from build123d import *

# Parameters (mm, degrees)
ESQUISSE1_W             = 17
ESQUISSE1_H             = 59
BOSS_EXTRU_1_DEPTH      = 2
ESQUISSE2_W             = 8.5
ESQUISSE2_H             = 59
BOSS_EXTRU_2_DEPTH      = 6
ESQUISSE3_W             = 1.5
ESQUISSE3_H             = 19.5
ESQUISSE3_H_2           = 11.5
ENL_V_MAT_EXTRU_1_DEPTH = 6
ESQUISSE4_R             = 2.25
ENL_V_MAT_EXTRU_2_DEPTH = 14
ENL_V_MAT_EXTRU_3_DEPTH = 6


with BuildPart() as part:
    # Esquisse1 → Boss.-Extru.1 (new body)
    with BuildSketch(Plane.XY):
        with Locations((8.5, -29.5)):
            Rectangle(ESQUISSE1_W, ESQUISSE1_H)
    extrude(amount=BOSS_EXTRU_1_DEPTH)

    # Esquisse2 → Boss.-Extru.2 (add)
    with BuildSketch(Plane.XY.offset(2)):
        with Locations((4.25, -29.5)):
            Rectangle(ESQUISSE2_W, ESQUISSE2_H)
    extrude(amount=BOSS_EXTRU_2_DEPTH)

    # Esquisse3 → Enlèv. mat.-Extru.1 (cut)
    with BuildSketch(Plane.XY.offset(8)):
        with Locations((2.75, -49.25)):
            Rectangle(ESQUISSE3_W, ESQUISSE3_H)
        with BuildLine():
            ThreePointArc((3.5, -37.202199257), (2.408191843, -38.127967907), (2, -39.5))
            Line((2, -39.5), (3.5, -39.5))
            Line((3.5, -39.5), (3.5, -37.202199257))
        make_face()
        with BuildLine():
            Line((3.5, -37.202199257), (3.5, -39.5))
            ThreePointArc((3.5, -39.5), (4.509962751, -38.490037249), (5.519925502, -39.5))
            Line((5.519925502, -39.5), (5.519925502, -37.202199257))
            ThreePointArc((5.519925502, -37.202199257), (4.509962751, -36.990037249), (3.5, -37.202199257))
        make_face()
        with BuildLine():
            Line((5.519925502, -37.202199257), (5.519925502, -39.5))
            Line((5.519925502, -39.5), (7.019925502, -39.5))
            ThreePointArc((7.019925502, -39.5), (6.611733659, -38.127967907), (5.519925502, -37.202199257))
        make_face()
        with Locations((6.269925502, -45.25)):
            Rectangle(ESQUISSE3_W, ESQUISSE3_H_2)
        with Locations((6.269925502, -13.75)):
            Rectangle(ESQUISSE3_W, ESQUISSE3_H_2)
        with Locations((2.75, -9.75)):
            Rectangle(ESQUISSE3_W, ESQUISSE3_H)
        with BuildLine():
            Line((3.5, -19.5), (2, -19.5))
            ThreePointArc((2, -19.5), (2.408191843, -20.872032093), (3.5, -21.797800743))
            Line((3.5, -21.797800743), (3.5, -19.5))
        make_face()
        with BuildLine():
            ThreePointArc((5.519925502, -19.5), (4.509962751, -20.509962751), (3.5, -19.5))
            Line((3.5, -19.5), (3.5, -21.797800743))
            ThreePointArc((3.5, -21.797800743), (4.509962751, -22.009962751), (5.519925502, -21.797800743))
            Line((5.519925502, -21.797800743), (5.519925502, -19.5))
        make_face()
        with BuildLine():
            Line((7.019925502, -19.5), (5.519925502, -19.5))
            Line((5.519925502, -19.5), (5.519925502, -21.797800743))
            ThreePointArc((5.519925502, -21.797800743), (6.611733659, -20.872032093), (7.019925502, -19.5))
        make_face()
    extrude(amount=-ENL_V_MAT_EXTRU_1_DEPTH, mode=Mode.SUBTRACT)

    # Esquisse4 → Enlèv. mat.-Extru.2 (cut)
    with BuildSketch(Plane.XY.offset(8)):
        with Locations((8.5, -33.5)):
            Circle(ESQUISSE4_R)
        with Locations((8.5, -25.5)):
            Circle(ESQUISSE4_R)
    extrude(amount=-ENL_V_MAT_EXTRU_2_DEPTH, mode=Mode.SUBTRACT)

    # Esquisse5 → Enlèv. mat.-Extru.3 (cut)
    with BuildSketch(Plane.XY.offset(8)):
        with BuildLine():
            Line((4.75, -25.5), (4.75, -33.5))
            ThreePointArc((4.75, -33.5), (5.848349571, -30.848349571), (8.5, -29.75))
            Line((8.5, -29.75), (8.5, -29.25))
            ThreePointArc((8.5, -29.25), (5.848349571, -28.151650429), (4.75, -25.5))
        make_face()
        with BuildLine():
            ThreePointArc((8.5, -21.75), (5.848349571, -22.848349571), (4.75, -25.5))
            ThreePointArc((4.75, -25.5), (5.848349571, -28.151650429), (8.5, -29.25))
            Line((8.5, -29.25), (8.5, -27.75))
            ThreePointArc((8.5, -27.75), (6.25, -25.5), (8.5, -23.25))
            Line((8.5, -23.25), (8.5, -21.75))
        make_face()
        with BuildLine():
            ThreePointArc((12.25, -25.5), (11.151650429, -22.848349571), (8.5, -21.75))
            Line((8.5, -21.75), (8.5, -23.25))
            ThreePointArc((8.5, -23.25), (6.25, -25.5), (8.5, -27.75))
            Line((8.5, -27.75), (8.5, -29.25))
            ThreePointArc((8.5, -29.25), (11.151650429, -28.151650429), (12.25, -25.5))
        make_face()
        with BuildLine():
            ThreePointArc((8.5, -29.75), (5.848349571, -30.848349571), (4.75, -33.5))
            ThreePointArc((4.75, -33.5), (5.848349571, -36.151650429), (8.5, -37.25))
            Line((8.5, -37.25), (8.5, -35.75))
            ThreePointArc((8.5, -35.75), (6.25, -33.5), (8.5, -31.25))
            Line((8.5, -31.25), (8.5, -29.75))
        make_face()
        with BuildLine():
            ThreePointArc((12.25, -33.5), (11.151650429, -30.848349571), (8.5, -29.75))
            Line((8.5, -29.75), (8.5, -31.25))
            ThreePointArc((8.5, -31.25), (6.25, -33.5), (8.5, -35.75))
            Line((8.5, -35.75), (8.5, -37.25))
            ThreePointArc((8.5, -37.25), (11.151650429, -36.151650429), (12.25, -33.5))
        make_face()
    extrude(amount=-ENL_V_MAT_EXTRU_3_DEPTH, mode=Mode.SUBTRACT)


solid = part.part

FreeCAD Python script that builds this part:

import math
import FreeCAD as App
import Part
import Sketcher

V = App.Vector
Q = App.Units.Quantity

doc = App.newDocument("Part")
body = doc.addObject("PartDesign::Body", "Body")

# Sketch on XY plane
sketch1 = body.newObject("Sketcher::SketchObject", "Sketch")
sketch1.AttachmentSupport = (doc.getObject("XY_Plane"), [""])
sketch1.MapMode = "FlatFace"
sketch1.addGeometry(Part.LineSegment(V(0, 0, 0), V(0, -59, 0)), False)
sketch1.addGeometry(Part.LineSegment(V(0, -59, 0), V(17, -59, 0)), False)
sketch1.addGeometry(Part.LineSegment(V(17, -59, 0), V(17, 0, 0)), False)
sketch1.addGeometry(Part.LineSegment(V(17, 0, 0), V(0, 0, 0)), False)
sketch1.addConstraint(Sketcher.Constraint("Coincident", 0, 2, 1, 1))
sketch1.addConstraint(Sketcher.Constraint("Coincident", 1, 2, 2, 1))
sketch1.addConstraint(Sketcher.Constraint("Coincident", 2, 2, 3, 1))
sketch1.addConstraint(Sketcher.Constraint("Coincident", 3, 2, 0, 1))
sketch1.addConstraint(Sketcher.Constraint("Vertical", 0))
sketch1.addConstraint(Sketcher.Constraint("Horizontal", 1))
sketch1.addConstraint(Sketcher.Constraint("Vertical", 2))
sketch1.addConstraint(Sketcher.Constraint("Horizontal", 3))
sketch1.addConstraint(Sketcher.Constraint("Coincident", 3, 2, -1, 1))
sketch1.addConstraint(Sketcher.Constraint("DistanceX", 1, 1, 1, 2, Q("17 mm")))
sketch1.addConstraint(Sketcher.Constraint("DistanceY", 0, 2, 0, 1, Q("59 mm")))
pad1 = body.newObject("PartDesign::Pad", "Pad")
pad1.Profile = sketch1
pad1.Length = 2

# Sketch on XY plane
sketch2 = body.newObject("Sketcher::SketchObject", "Sketch001")
sketch2.AttachmentSupport = (doc.getObject("XY_Plane"), [""])
sketch2.MapMode = "FlatFace"
sketch2.AttachmentOffset = App.Placement(V(0, 0, 2), App.Rotation())
sketch2.addGeometry(Part.LineSegment(V(0, 0, 0), V(0, -59, 0)), False)
sketch2.addGeometry(Part.LineSegment(V(0, -59, 0), V(8, -59, 0)), False)
sketch2.addGeometry(Part.LineSegment(V(8, -59, 0), V(8, 0, 0)), False)
sketch2.addGeometry(Part.LineSegment(V(8, 0, 0), V(0, 0, 0)), False)
sketch2.addConstraint(Sketcher.Constraint("Coincident", 0, 2, 1, 1))
sketch2.addConstraint(Sketcher.Constraint("Coincident", 1, 2, 2, 1))
sketch2.addConstraint(Sketcher.Constraint("Coincident", 2, 2, 3, 1))
sketch2.addConstraint(Sketcher.Constraint("Coincident", 3, 2, 0, 1))
sketch2.addConstraint(Sketcher.Constraint("Vertical", 0))
sketch2.addConstraint(Sketcher.Constraint("Horizontal", 1))
sketch2.addConstraint(Sketcher.Constraint("Vertical", 2))
sketch2.addConstraint(Sketcher.Constraint("Horizontal", 3))
sketch2.addConstraint(Sketcher.Constraint("Coincident", 3, 2, -1, 1))
sketch2.addConstraint(Sketcher.Constraint("DistanceY", 0, 2, 0, 1, Q("59 mm")))
sketch2.addConstraint(Sketcher.Constraint("DistanceX", 1, 1, 1, 2, Q("8.5 mm")))
pad2 = body.newObject("PartDesign::Pad", "Pad001")
pad2.Profile = sketch2
pad2.Length = 6

# Sketch on XY plane
sketch3 = body.newObject("Sketcher::SketchObject", "Sketch002")
sketch3.AttachmentSupport = (doc.getObject("XY_Plane"), [""])
sketch3.MapMode = "FlatFace"
sketch3.AttachmentOffset = App.Placement(V(0, 0, 8), App.Rotation())
sketch3.addGeometry(Part.LineSegment(V(2, -39.5, 0), V(2, -59, 0)), False)
sketch3.addGeometry(Part.LineSegment(V(2, -59, 0), V(3.5, -59, 0)), False)
sketch3.addGeometry(Part.LineSegment(V(3.5, -59, 0), V(3.5, -39.5, 0)), False)
sketch3.addGeometry(Part.ArcOfCircle(Part.Circle(V(4.5, -39.5, 0), V(0, 0, 1), 1), math.radians(0), math.radians(180)), False)
sketch3.addGeometry(Part.LineSegment(V(5.5, -39.5, 0), V(5.5, -51, 0)), False)
sketch3.addGeometry(Part.LineSegment(V(5.5, -51, 0), V(7, -51, 0)), False)
sketch3.addGeometry(Part.LineSegment(V(7, -51, 0), V(7, -39.5, 0)), False)
sketch3.addGeometry(Part.ArcOfCircle(Part.Circle(V(4.5, -39.5, 0), V(0, 0, 1), 2.5), math.radians(0), math.radians(66)), False)
sketch3.addGeometry(Part.ArcOfCircle(Part.Circle(V(4.5, -39.5, 0), V(0, 0, 1), 2.5), math.radians(66), math.radians(114)), False)
sketch3.addGeometry(Part.ArcOfCircle(Part.Circle(V(4.5, -39.5, 0), V(0, 0, 1), 2.5), math.radians(114), math.radians(180)), False)
sketch3.addGeometry(Part.LineSegment(V(5.5, -8, 0), V(5.5, -19.5, 0)), False)
sketch3.addGeometry(Part.ArcOfCircle(Part.Circle(V(4.5, -19.5, 0), V(0, 0, 1), 1), math.radians(180), math.radians(360)), False)
sketch3.addGeometry(Part.LineSegment(V(3.5, -19.5, 0), V(3.5, 0, 0)), False)
sketch3.addGeometry(Part.LineSegment(V(3.5, 0, 0), V(2, 0, 0)), False)
sketch3.addGeometry(Part.LineSegment(V(2, 0, 0), V(2, -19.5, 0)), False)
sketch3.addGeometry(Part.ArcOfCircle(Part.Circle(V(4.5, -19.5, 0), V(0, 0, 1), 2.5), math.radians(180), math.radians(246)), False)
sketch3.addGeometry(Part.ArcOfCircle(Part.Circle(V(4.5, -19.5, 0), V(0, 0, 1), 2.5), math.radians(-114), math.radians(-66)), False)
sketch3.addGeometry(Part.ArcOfCircle(Part.Circle(V(4.5, -19.5, 0), V(0, 0, 1), 2.5), math.radians(-66), math.radians(0)), False)
sketch3.addGeometry(Part.LineSegment(V(7, -19.5, 0), V(7, -8, 0)), False)
sketch3.addGeometry(Part.LineSegment(V(7, -8, 0), V(5.5, -8, 0)), False)
sketch3.addConstraint(Sketcher.Constraint("Coincident", 0, 2, 1, 1))
sketch3.addConstraint(Sketcher.Constraint("Coincident", 1, 2, 2, 1))
sketch3.addConstraint(Sketcher.Constraint("Tangent", 2, 2, 3, 2))
sketch3.addConstraint(Sketcher.Constraint("Tangent", 3, 1, 4, 1))
sketch3.addConstraint(Sketcher.Constraint("Coincident", 4, 2, 5, 1))
sketch3.addConstraint(Sketcher.Constraint("Coincident", 5, 2, 6, 1))
sketch3.addConstraint(Sketcher.Constraint("Tangent", 6, 2, 7, 1))
sketch3.addConstraint(Sketcher.Constraint("Tangent", 7, 2, 8, 1))
sketch3.addConstraint(Sketcher.Constraint("Tangent", 8, 2, 9, 1))
sketch3.addConstraint(Sketcher.Constraint("Tangent", 9, 2, 0, 1))
sketch3.addConstraint(Sketcher.Constraint("Tangent", 10, 2, 11, 2))
sketch3.addConstraint(Sketcher.Constraint("Tangent", 11, 1, 12, 1))
sketch3.addConstraint(Sketcher.Constraint("Coincident", 12, 2, 13, 1))
sketch3.addConstraint(Sketcher.Constraint("Coincident", 13, 2, 14, 1))
sketch3.addConstraint(Sketcher.Constraint("Tangent", 14, 2, 15, 1))
sketch3.addConstraint(Sketcher.Constraint("Tangent", 15, 2, 16, 1))
sketch3.addConstraint(Sketcher.Constraint("Tangent", 16, 2, 17, 1))
sketch3.addConstraint(Sketcher.Constraint("Tangent", 17, 2, 18, 1))
sketch3.addConstraint(Sketcher.Constraint("Coincident", 18, 2, 19, 1))
sketch3.addConstraint(Sketcher.Constraint("Coincident", 19, 2, 10, 1))
sketch3.addConstraint(Sketcher.Constraint("Vertical", 0))
sketch3.addConstraint(Sketcher.Constraint("Horizontal", 1))
sketch3.addConstraint(Sketcher.Constraint("Vertical", 2))
sketch3.addConstraint(Sketcher.Constraint("Vertical", 4))
sketch3.addConstraint(Sketcher.Constraint("Horizontal", 5))
sketch3.addConstraint(Sketcher.Constraint("Vertical", 6))
sketch3.addConstraint(Sketcher.Constraint("Vertical", 10))
sketch3.addConstraint(Sketcher.Constraint("Vertical", 12))
sketch3.addConstraint(Sketcher.Constraint("Horizontal", 13))
sketch3.addConstraint(Sketcher.Constraint("Vertical", 14))
sketch3.addConstraint(Sketcher.Constraint("Vertical", 18))
sketch3.addConstraint(Sketcher.Constraint("Horizontal", 19))
sketch3.addConstraint(Sketcher.Constraint("Coincident", 7, 3, 3, 3))
sketch3.addConstraint(Sketcher.Constraint("Coincident", 9, 3, 3, 3))
sketch3.addConstraint(Sketcher.Constraint("Coincident", 15, 3, 11, 3))
sketch3.addConstraint(Sketcher.Constraint("Coincident", 17, 3, 11, 3))
sketch3.addConstraint(Sketcher.Constraint("Equal", 3, 11))
sketch3.addConstraint(Sketcher.Constraint("Equal", 9, 15))
sketch3.addConstraint(Sketcher.Constraint("PointOnObject", 12, 2, -1))
sketch3.addConstraint(Sketcher.Constraint("Horizontal", 7, 2, 8, 2))
sketch3.addConstraint(Sketcher.Constraint("Horizontal", 15, 2, 16, 2))
sketch3.addConstraint(Sketcher.Constraint("Vertical", 9, 3, 11, 3))
sketch3.addConstraint(Sketcher.Constraint("Vertical", 4, 2, 7, 2))
sketch3.addConstraint(Sketcher.Constraint("Vertical", 12, 2, 15, 2))
sketch3.addConstraint(Sketcher.Constraint("Equal", 6, 10))
sketch3.addConstraint(Sketcher.Constraint("Equal", 2, 12))
sketch3.addConstraint(Sketcher.Constraint("DistanceX", 1, 1, 1, 2, Q("1.5 mm")))
sketch3.addConstraint(Sketcher.Constraint("DistanceY", 0, 2, 0, 1, Q("19.5 mm")))
sketch3.addConstraint(Sketcher.Constraint("DistanceY", 4, 2, 4, 1, Q("11.5 mm")))
sketch3.addConstraint(Sketcher.Constraint("DistanceX", -1, 1, 0, 2, Q("2 mm")))
sketch3.addConstraint(Sketcher.Constraint("DistanceY", 0, 2, -1, 1, Q("59 mm")))
sketch3.addConstraint(Sketcher.Constraint("Radius", 3, Q("1.009963 mm")))
pocket1 = body.newObject("PartDesign::Pocket", "Pocket")
pocket1.Profile = sketch3
pocket1.Length = 6

# Sketch on XY plane
sketch4 = body.newObject("Sketcher::SketchObject", "Sketch003")
sketch4.AttachmentSupport = (doc.getObject("XY_Plane"), [""])
sketch4.MapMode = "FlatFace"
sketch4.AttachmentOffset = App.Placement(V(0, 0, 8), App.Rotation())
sketch4.addGeometry(Part.Circle(V(8.5, -33.5, 0), V(0, 0, 1), 2.2), False)
sketch4.addGeometry(Part.Circle(V(8.5, -25.5, 0), V(0, 0, 1), 2.2), False)
sketch4.addConstraint(Sketcher.Constraint("Equal", 0, 1))
sketch4.addConstraint(Sketcher.Constraint("Vertical", 0, 3, 1, 3))
sketch4.addConstraint(Sketcher.Constraint("Diameter", 0, Q("4.5 mm")))
sketch4.addConstraint(Sketcher.Constraint("DistanceY", 0, 3, 1, 3, Q("8 mm")))
sketch4.addConstraint(Sketcher.Constraint("DistanceX", -1, 1, 0, 3, Q("8.5 mm")))
sketch4.addConstraint(Sketcher.Constraint("DistanceY", 0, 3, -1, 1, Q("33.5 mm")))
pocket2 = body.newObject("PartDesign::Pocket", "Pocket001")
pocket2.Profile = sketch4
pocket2.Length = 14

# Sketch on XY plane
sketch5 = body.newObject("Sketcher::SketchObject", "Sketch004")
sketch5.AttachmentSupport = (doc.getObject("XY_Plane"), [""])
sketch5.MapMode = "FlatFace"
sketch5.AttachmentOffset = App.Placement(V(0, 0, 8), App.Rotation())
sketch5.addGeometry(Part.LineSegment(V(4.8, -25.5, 0), V(4.8, -33.5, 0)), False)
sketch5.addGeometry(Part.ArcOfCircle(Part.Circle(V(8.5, -33.5, 0), V(0, 0, 1), 3.8), math.radians(-180), math.radians(-90)), False)
sketch5.addGeometry(Part.ArcOfCircle(Part.Circle(V(8.5, -33.5, 0), V(0, 0, 1), 3.8), math.radians(-90), math.radians(0)), False)
sketch5.addGeometry(Part.ArcOfCircle(Part.Circle(V(8.5, -33.5, 0), V(0, 0, 1), 3.8), math.radians(0), math.radians(90)), False)
sketch5.addGeometry(Part.LineSegment(V(8.5, -29.8, 0), V(8.5, -29.2, 0)), False)
sketch5.addGeometry(Part.ArcOfCircle(Part.Circle(V(8.5, -25.5, 0), V(0, 0, 1), 3.8), math.radians(-90), math.radians(0)), False)
sketch5.addGeometry(Part.ArcOfCircle(Part.Circle(V(8.5, -25.5, 0), V(0, 0, 1), 3.8), math.radians(0), math.radians(90)), False)
sketch5.addGeometry(Part.ArcOfCircle(Part.Circle(V(8.5, -25.5, 0), V(0, 0, 1), 3.8), math.radians(90), math.radians(180)), False)
sketch5.addConstraint(Sketcher.Constraint("Tangent", 0, 2, 1, 1))
sketch5.addConstraint(Sketcher.Constraint("Tangent", 1, 2, 2, 1))
sketch5.addConstraint(Sketcher.Constraint("Tangent", 2, 2, 3, 1))
sketch5.addConstraint(Sketcher.Constraint("Coincident", 3, 2, 4, 1))
sketch5.addConstraint(Sketcher.Constraint("Coincident", 4, 2, 5, 1))
sketch5.addConstraint(Sketcher.Constraint("Tangent", 5, 2, 6, 1))
sketch5.addConstraint(Sketcher.Constraint("Tangent", 6, 2, 7, 1))
sketch5.addConstraint(Sketcher.Constraint("Tangent", 7, 2, 0, 1))
sketch5.addConstraint(Sketcher.Constraint("Vertical", 0))
sketch5.addConstraint(Sketcher.Constraint("Vertical", 4))
sketch5.addConstraint(Sketcher.Constraint("Coincident", 3, 3, 1, 3))
sketch5.addConstraint(Sketcher.Constraint("Coincident", 7, 3, 5, 3))
sketch5.addConstraint(Sketcher.Constraint("Equal", 3, 5))
sketch5.addConstraint(Sketcher.Constraint("Horizontal", 0, 2, 2, 2))
sketch5.addConstraint(Sketcher.Constraint("Horizontal", 7, 3, 5, 2))
sketch5.addConstraint(Sketcher.Constraint("Vertical", 7, 3, 1, 2))
sketch5.addConstraint(Sketcher.Constraint("Vertical", 1, 2, 3, 2))
sketch5.addConstraint(Sketcher.Constraint("Vertical", 4, 2, 6, 2))
sketch5.addConstraint(Sketcher.Constraint("DistanceY", 0, 2, 0, 1, Q("8 mm")))
sketch5.addConstraint(Sketcher.Constraint("Radius", 1, Q("3.75 mm")))
sketch5.addConstraint(Sketcher.Constraint("DistanceX", -1, 1, 1, 3, Q("8.5 mm")))
sketch5.addConstraint(Sketcher.Constraint("DistanceY", 1, 3, -1, 1, Q("33.5 mm")))
pocket3 = body.newObject("PartDesign::Pocket", "Pocket002")
pocket3.Profile = sketch5
pocket3.Length = 6

doc.recompute()
